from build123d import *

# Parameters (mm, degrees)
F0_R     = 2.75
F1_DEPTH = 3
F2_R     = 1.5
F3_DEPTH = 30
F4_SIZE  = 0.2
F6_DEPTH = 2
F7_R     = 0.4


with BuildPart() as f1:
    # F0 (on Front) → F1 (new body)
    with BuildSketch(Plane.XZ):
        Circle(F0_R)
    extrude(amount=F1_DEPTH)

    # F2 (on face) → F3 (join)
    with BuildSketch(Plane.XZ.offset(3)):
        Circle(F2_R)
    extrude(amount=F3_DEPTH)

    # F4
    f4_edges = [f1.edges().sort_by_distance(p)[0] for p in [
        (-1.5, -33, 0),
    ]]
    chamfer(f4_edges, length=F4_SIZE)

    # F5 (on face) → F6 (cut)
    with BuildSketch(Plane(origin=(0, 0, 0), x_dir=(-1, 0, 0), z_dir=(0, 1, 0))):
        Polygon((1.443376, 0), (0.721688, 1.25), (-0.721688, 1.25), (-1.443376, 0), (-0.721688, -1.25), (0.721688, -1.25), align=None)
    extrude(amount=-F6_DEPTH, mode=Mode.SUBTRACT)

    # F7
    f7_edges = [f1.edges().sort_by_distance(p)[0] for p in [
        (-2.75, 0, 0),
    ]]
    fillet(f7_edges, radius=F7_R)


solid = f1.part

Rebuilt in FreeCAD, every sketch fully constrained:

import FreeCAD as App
import Part
import Sketcher
Q = App.Units.Quantity


def edges_at(feature, points):
    """Names of the edges that pass closest to the given points."""
    edges = feature.Shape.Edges
    near = lambda p: min(range(len(edges)), key=lambda i: edges[i].distToShape(Part.Vertex(*p))[0])
    return sorted({f"Edge{near(p) + 1}" for p in points})


def add_polygon(sketch, points):
    """Adds a closed chain of lines whose ends are joined by coincident constraints."""
    first, n = sketch.GeometryCount, len(points)
    for a, b in zip(points, points[1:] + points[:1]):
        sketch.addGeometry(Part.LineSegment(App.Vector(*a, 0), App.Vector(*b, 0)), False)
    for i in range(n):
        sketch.addConstraint(Sketcher.Constraint("Coincident", first + i, 2, first + (i + 1) % n, 1))

doc = App.newDocument("Part")
body = doc.addObject("PartDesign::Body", "Body")

# Sketch on XZ plane
sketch1 = body.newObject("Sketcher::SketchObject", "Sketch")
sketch1.AttachmentSupport = (doc.getObject("XZ_Plane"), [""])
sketch1.MapMode = "FlatFace"
sketch1.addGeometry(Part.Circle(App.Vector(0, 0, 0), App.Vector(0, 0, 1), 2.75), False)
sketch1.addConstraint(Sketcher.Constraint("Coincident", 0, 3, -1, 1))
sketch1.addConstraint(Sketcher.Constraint("Diameter", 0, 5.5))
pad1 = body.newObject("PartDesign::Pad", "Pad")
pad1.Profile = sketch1
pad1.Length = 3

# Sketch on XZ plane
sketch2 = body.newObject("Sketcher::SketchObject", "Sketch001")
sketch2.AttachmentSupport = (doc.getObject("XZ_Plane"), [""])
sketch2.MapMode = "FlatFace"
sketch2.AttachmentOffset = App.Placement(App.Vector(0, 0, 3), App.Rotation())
sketch2.addGeometry(Part.Circle(App.Vector(0, 0, 0), App.Vector(0, 0, 1), 1.5), False)
sketch2.addConstraint(Sketcher.Constraint("Coincident", 0, 3, -1, 1))
sketch2.addConstraint(Sketcher.Constraint("Diameter", 0, 3.0))
pad2 = body.newObject("PartDesign::Pad", "Pad001")
pad2.Profile = sketch2
pad2.Length = 30
doc.recompute()

chamfer = body.newObject("PartDesign::Chamfer", "Chamfer")
chamfer.Base = (pad2, edges_at(pad2, [(-1.5, -33, 0)]))
chamfer.Size = 0.2

# Sketch on XZ plane
sketch3 = body.newObject("Sketcher::SketchObject", "Sketch002")
sketch3.AttachmentSupport = (doc.getObject("XZ_Plane"), [""])
sketch3.MapMode = "FlatFace"
add_polygon(sketch3, [(-1.443376, 0), (-0.721688, 1.25), (0.721688, 1.25), (1.443376, 0), (0.721688, -1.25), (-0.721688, -1.25)])  # lines 0-5
sketch3.addConstraint(Sketcher.Constraint("Horizontal", 1))
sketch3.addConstraint(Sketcher.Constraint("Horizontal", 4))
sketch3.addConstraint(Sketcher.Constraint("Symmetric", 0, 2, 3, 2, -1, 1))
sketch3.addConstraint(Sketcher.Constraint("Symmetric", 2, 2, 5, 2, -1, 1))
sketch3.addConstraint(Sketcher.Constraint("PointOnObject", 2, 2, -1))
sketch3.addConstraint(Sketcher.Constraint("Parallel", 2, 5))
sketch3.addConstraint(Sketcher.Constraint("Vertical", 1, 2, 3, 2))
sketch3.addConstraint(Sketcher.Constraint("Angle", 0, Q("59.999994 deg")))
sketch3.addConstraint(Sketcher.Constraint("DistanceY", 3, 2, 1, 2, 2.5))
sketch3.addConstraint(Sketcher.Constraint("DistanceX", 1, 1, 1, 2, 1.443376))
pocket1 = body.newObject("PartDesign::Pocket", "Pocket")
pocket1.Profile = sketch3
pocket1.Length = 2
pocket1.Reversed = True
doc.recompute()

fillet = body.newObject("PartDesign::Fillet", "Fillet")
fillet.Base = (pocket1, edges_at(pocket1, [(-2.75, 0, 0)]))
fillet.Radius = 0.4

doc.recompute()
